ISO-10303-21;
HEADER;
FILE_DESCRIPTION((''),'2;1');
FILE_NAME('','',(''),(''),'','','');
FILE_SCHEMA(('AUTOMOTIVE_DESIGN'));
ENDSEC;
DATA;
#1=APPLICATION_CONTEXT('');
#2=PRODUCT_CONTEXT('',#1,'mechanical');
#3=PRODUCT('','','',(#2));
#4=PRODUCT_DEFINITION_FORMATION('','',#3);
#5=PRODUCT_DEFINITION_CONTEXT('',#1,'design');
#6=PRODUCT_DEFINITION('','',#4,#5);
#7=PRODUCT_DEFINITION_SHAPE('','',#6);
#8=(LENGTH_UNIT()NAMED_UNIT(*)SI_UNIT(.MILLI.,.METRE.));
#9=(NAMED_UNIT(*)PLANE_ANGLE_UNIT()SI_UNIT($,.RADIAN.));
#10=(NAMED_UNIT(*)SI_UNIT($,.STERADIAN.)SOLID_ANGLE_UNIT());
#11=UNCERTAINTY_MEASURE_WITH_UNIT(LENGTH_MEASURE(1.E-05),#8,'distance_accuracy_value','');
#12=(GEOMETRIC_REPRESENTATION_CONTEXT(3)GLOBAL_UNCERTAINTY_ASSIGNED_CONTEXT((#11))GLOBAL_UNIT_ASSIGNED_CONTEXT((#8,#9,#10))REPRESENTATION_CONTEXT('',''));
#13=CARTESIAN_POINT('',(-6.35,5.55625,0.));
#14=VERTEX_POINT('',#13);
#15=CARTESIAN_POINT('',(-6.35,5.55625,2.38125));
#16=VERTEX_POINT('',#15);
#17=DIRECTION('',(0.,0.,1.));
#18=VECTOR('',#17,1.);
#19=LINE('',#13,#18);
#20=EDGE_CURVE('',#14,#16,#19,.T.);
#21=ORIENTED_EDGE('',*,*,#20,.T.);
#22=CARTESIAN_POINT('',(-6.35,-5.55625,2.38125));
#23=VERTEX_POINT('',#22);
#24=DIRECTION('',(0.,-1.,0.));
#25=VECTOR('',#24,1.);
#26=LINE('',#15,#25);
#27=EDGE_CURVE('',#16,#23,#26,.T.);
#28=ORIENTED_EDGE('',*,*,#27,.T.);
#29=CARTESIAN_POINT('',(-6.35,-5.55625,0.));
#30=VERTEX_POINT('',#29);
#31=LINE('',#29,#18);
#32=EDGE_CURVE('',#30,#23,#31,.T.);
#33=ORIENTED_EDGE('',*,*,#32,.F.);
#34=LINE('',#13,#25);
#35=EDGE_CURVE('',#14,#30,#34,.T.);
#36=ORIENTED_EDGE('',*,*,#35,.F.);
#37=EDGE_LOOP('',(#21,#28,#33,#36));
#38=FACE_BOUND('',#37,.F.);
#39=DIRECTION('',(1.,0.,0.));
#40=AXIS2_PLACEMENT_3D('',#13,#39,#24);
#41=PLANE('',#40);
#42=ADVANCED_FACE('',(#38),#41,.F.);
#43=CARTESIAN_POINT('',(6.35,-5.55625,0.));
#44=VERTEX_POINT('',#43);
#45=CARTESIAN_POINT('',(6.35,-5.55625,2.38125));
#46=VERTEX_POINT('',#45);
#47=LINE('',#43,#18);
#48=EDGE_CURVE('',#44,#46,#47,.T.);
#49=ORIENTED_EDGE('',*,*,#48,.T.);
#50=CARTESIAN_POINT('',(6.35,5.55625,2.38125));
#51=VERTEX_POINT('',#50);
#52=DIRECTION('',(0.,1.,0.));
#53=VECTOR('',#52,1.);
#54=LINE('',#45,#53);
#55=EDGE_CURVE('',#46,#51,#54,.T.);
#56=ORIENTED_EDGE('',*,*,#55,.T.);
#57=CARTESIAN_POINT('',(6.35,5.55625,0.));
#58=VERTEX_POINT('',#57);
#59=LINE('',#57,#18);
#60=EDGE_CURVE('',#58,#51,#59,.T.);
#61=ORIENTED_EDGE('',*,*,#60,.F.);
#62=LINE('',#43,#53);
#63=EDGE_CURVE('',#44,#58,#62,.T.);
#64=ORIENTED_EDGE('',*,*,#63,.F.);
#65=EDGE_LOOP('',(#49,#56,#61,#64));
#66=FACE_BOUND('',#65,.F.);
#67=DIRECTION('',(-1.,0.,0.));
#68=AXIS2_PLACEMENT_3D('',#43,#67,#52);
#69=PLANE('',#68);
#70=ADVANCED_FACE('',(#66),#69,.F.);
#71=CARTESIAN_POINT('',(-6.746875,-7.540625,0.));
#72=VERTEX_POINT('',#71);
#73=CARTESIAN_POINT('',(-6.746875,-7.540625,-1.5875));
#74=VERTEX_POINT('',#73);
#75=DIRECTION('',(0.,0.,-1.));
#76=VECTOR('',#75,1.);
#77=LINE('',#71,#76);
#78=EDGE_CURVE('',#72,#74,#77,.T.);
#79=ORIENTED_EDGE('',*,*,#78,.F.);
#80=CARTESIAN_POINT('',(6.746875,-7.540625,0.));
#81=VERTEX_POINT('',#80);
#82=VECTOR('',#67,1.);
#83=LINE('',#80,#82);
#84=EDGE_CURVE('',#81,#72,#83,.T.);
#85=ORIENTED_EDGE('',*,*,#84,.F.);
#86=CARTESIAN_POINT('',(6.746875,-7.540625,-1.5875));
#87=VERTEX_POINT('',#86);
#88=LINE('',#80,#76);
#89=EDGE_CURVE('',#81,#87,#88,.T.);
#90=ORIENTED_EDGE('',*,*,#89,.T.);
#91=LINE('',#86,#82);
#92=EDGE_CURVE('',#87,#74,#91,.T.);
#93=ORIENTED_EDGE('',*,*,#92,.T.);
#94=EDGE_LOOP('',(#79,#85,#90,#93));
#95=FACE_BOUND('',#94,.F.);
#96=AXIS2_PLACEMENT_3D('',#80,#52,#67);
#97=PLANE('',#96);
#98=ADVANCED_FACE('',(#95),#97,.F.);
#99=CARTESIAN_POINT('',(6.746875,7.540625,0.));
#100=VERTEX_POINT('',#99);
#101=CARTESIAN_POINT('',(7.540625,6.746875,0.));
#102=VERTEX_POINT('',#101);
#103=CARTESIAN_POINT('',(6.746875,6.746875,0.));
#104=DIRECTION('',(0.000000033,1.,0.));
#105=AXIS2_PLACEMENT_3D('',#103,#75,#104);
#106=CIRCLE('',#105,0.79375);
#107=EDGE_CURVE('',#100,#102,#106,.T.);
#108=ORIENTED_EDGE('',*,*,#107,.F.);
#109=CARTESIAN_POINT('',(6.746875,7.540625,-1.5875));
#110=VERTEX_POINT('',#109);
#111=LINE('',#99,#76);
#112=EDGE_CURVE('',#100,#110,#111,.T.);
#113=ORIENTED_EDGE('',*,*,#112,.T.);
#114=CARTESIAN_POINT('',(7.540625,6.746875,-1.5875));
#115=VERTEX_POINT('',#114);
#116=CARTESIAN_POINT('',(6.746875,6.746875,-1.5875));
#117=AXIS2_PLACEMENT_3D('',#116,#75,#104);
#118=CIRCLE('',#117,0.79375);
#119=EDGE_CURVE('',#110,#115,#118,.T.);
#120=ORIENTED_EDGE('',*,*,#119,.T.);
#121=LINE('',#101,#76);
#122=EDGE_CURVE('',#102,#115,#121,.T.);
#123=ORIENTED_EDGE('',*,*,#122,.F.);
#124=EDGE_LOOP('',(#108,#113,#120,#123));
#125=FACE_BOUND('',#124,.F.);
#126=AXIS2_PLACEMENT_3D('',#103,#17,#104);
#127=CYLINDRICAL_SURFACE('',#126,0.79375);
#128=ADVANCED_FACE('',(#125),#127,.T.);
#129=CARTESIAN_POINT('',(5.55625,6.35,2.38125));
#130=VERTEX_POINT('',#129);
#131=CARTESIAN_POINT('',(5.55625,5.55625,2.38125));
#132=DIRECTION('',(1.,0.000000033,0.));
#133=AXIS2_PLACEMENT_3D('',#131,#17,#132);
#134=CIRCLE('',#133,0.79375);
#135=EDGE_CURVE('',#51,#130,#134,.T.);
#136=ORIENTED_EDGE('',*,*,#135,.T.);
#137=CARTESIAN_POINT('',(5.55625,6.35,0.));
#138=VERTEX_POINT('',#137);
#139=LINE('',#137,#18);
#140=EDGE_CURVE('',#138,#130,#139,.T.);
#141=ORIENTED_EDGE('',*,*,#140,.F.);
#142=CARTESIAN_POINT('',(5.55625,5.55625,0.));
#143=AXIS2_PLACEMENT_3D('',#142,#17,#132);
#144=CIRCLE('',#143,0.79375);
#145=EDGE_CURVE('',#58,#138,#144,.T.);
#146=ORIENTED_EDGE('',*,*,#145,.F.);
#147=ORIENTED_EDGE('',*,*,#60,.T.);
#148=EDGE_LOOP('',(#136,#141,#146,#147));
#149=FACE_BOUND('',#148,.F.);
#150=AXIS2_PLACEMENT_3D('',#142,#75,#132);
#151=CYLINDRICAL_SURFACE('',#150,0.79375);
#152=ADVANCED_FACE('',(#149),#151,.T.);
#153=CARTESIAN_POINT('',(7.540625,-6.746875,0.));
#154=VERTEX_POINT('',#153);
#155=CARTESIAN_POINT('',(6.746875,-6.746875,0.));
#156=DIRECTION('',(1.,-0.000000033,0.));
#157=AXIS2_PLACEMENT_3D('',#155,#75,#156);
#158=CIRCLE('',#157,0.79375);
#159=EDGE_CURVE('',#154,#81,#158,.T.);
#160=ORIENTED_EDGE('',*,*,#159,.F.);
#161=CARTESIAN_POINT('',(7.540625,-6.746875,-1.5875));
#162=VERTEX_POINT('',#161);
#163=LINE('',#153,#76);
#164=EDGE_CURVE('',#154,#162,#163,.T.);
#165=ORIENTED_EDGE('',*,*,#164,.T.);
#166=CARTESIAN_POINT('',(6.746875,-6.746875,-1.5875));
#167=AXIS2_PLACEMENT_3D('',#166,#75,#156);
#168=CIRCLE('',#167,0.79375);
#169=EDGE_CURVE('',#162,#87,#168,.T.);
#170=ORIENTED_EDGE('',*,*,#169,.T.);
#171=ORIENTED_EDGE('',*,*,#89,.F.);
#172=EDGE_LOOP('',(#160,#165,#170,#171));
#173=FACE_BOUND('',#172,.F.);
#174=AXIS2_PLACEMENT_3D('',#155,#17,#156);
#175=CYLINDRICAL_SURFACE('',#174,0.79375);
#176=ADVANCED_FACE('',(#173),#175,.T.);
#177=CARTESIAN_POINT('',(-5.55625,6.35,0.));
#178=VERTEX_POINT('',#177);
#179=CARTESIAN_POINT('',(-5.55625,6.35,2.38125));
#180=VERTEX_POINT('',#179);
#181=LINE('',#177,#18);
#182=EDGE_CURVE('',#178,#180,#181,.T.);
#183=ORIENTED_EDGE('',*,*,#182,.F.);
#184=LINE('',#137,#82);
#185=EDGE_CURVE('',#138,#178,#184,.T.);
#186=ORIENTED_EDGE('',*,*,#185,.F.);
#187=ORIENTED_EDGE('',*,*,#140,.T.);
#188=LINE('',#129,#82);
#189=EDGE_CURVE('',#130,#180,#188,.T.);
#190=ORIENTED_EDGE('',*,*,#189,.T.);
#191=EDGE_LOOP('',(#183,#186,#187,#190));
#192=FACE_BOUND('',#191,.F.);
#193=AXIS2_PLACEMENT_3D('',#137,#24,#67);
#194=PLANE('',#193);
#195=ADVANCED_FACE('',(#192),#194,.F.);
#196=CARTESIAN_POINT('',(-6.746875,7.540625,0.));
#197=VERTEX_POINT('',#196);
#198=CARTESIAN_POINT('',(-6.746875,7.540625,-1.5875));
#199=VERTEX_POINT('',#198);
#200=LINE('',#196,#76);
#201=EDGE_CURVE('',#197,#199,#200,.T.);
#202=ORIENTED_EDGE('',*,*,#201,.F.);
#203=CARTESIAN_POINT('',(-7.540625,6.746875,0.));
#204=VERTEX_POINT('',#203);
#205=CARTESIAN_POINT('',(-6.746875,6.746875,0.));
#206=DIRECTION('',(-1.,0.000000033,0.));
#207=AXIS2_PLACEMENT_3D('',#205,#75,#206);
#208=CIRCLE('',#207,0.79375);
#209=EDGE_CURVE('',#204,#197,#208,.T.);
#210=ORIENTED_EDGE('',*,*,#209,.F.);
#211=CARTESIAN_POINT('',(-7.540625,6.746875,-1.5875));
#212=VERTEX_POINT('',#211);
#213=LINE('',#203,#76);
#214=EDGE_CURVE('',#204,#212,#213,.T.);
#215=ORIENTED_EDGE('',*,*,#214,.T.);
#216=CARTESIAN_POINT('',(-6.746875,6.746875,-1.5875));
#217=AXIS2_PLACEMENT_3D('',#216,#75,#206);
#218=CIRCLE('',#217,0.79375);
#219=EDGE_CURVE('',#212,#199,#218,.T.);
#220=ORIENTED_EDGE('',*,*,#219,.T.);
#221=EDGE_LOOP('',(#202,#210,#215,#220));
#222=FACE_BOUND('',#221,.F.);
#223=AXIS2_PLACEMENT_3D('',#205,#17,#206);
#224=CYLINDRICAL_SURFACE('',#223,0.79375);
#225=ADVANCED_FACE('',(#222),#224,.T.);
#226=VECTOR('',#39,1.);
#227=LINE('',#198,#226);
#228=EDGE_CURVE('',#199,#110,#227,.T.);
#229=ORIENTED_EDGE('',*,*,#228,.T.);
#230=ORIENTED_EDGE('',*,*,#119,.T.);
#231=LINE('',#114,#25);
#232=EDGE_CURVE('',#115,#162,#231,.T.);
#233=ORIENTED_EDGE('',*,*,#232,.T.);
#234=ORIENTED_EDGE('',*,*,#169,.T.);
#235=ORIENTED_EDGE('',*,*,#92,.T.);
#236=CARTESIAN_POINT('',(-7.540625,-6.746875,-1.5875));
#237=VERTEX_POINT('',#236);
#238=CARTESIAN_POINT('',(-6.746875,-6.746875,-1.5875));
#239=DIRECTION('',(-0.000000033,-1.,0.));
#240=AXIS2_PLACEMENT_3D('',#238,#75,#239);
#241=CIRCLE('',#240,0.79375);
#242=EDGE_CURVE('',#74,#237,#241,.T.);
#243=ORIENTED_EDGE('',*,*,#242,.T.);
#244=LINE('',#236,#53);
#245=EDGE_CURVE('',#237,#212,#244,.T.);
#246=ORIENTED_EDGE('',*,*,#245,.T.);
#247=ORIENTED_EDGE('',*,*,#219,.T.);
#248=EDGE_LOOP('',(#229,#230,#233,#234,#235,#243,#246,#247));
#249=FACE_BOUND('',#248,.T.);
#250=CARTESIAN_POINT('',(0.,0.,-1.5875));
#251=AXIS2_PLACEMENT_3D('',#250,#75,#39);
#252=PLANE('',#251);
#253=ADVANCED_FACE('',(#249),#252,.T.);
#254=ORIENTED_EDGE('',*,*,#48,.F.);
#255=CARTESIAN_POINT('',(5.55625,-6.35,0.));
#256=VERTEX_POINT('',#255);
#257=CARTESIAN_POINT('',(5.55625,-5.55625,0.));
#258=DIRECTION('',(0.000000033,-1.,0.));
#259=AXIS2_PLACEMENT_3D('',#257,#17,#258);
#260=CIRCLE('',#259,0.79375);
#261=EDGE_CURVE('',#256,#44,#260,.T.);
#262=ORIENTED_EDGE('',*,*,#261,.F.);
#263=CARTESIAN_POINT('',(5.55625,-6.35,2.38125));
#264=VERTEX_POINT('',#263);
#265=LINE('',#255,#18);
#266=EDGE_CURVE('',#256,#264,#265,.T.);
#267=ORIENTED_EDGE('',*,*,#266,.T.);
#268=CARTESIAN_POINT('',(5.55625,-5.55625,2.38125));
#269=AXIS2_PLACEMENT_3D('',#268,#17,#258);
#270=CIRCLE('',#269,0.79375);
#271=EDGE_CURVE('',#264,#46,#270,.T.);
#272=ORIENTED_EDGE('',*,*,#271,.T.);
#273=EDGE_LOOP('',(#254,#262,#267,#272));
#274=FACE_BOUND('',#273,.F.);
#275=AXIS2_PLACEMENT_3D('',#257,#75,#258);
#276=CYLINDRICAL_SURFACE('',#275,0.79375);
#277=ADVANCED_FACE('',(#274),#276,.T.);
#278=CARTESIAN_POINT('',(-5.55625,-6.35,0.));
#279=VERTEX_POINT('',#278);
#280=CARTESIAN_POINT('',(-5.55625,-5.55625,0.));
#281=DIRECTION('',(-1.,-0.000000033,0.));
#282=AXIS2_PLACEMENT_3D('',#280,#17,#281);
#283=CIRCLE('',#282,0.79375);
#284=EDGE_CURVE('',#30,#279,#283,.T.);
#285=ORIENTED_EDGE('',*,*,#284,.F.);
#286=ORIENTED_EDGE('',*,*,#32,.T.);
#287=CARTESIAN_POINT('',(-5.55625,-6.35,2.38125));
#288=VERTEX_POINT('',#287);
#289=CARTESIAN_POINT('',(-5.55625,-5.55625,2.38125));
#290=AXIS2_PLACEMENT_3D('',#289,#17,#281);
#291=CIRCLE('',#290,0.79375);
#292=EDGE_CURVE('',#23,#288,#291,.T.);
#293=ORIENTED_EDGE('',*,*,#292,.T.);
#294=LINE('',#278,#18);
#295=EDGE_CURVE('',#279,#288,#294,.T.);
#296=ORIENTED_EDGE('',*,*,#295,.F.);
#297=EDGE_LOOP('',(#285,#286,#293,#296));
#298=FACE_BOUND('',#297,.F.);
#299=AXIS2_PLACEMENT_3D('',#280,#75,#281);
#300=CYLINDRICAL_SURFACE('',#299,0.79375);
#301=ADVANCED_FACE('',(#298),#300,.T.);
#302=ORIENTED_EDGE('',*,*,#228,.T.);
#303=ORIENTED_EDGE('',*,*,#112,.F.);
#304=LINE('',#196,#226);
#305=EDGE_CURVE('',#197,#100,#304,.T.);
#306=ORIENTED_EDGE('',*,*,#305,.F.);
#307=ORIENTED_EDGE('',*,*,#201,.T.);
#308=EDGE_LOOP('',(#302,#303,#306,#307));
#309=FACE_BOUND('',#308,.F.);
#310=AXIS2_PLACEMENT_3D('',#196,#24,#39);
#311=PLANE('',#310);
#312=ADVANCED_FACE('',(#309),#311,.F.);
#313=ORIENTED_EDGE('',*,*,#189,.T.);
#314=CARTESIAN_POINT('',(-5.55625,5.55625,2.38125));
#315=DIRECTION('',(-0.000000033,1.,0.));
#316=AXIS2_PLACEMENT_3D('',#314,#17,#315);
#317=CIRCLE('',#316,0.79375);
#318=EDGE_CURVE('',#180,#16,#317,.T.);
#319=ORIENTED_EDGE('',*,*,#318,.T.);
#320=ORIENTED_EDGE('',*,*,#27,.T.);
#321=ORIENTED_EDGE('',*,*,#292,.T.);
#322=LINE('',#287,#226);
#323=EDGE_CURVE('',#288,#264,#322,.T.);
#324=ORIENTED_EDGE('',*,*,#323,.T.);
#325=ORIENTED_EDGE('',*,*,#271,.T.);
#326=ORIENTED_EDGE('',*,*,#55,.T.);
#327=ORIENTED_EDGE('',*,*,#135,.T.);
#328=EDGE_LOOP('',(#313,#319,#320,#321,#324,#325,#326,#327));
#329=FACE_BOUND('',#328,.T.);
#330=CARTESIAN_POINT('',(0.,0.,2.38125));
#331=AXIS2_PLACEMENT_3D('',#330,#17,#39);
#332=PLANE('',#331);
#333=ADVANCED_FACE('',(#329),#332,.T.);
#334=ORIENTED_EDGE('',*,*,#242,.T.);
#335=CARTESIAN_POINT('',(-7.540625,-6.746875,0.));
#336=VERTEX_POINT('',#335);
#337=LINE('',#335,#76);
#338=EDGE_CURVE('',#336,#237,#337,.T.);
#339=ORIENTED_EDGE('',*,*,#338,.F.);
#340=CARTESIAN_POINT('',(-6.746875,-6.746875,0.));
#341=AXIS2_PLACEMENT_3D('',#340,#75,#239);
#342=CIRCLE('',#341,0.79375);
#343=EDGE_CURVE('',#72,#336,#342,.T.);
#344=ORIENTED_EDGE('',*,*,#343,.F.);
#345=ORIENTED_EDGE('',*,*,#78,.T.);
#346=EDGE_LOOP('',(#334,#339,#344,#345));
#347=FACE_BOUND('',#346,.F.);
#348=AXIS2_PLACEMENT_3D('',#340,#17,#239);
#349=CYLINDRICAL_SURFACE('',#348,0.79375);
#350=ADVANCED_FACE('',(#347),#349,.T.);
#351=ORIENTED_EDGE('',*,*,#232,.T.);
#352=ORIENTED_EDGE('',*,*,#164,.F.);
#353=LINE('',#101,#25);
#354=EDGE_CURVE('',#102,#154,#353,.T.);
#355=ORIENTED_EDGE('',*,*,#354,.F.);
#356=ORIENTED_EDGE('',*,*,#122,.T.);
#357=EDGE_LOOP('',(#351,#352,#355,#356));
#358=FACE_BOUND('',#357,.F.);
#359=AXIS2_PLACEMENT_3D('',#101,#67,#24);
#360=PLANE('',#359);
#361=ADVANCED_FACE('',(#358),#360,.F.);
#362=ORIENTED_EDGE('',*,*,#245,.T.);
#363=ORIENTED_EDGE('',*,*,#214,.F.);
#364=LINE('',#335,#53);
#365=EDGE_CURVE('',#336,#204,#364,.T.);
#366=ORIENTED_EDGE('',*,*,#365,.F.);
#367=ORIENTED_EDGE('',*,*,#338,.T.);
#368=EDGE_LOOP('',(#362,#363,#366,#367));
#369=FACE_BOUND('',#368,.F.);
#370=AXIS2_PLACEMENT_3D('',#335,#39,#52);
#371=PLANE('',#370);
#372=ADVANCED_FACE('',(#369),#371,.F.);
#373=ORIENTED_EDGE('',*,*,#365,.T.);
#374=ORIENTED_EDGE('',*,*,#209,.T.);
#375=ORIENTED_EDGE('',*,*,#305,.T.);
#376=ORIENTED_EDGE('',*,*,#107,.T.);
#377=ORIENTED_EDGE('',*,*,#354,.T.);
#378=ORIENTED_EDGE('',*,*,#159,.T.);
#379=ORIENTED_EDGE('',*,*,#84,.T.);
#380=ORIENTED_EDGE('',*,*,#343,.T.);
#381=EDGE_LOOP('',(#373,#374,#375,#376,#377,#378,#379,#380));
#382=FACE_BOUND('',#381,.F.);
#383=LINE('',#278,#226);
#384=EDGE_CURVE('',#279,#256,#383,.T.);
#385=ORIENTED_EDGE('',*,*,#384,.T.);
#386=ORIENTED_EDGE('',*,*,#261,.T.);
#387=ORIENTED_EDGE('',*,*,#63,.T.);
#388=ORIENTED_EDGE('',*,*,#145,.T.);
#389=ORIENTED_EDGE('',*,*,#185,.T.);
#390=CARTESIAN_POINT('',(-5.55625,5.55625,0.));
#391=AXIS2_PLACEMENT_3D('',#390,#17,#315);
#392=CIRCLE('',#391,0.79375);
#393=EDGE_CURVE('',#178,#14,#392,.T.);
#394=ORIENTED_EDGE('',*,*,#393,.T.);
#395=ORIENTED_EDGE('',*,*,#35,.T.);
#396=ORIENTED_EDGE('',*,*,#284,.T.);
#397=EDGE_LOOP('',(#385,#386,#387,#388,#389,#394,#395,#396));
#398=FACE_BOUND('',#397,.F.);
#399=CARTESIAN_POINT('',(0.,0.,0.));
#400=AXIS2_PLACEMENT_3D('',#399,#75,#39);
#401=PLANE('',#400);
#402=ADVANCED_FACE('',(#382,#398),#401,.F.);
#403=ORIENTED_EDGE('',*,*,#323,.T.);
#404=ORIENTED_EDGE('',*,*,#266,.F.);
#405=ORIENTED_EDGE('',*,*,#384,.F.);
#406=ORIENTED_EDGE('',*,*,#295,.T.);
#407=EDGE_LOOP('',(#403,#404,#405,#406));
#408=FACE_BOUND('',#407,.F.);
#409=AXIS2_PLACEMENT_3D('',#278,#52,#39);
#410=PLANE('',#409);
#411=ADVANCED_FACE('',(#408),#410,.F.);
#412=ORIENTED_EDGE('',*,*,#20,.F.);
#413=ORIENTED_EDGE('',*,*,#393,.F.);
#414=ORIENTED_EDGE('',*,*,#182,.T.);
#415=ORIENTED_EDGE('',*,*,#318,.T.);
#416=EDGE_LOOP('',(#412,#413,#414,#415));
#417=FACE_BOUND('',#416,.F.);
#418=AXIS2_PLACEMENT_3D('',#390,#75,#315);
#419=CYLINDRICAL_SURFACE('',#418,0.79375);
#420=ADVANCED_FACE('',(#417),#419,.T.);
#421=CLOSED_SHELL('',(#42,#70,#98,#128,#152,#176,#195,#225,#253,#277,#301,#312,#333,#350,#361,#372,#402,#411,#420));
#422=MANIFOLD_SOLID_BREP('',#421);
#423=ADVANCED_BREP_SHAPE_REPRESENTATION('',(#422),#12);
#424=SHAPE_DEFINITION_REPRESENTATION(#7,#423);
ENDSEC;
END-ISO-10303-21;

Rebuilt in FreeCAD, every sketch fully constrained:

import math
import FreeCAD as App
import Part
import Sketcher
Q = App.Units.Quantity

doc = App.newDocument("Part")
body = doc.addObject("PartDesign::Body", "Body")

# Sketch on XY plane
sketch1 = body.newObject("Sketcher::SketchObject", "Sketch")
sketch1.AttachmentSupport = (doc.getObject("XY_Plane"), [""])
sketch1.MapMode = "FlatFace"
sketch1.addGeometry(Part.LineSegment(App.Vector(-5.6, -6.3, 0), App.Vector(5.6, -6.3, 0)), False)
sketch1.addGeometry(Part.ArcOfCircle(Part.Circle(App.Vector(5.6, -5.6, 0), App.Vector(0, 0, 1), 0.8), math.radians(-90), math.radians(0)), False)
sketch1.addGeometry(Part.LineSegment(App.Vector(6.3, -5.6, 0), App.Vector(6.3, 5.6, 0)), False)
sketch1.addGeometry(Part.ArcOfCircle(Part.Circle(App.Vector(5.6, 5.6, 0), App.Vector(0, 0, 1), 0.8), math.radians(0), math.radians(90)), False)
sketch1.addGeometry(Part.LineSegment(App.Vector(5.6, 6.3, 0), App.Vector(-5.6, 6.3, 0)), False)
sketch1.addGeometry(Part.ArcOfCircle(Part.Circle(App.Vector(-5.6, 5.6, 0), App.Vector(0, 0, 1), 0.8), math.radians(90), math.radians(180)), False)
sketch1.addGeometry(Part.LineSegment(App.Vector(-6.3, 5.6, 0), App.Vector(-6.3, -5.6, 0)), False)
sketch1.addGeometry(Part.ArcOfCircle(Part.Circle(App.Vector(-5.6, -5.6, 0), App.Vector(0, 0, 1), 0.8), math.radians(-180), math.radians(-90)), False)
sketch1.addConstraint(Sketcher.Constraint("Tangent", 0, 2, 1, 1))
sketch1.addConstraint(Sketcher.Constraint("Tangent", 1, 2, 2, 1))
sketch1.addConstraint(Sketcher.Constraint("Tangent", 2, 2, 3, 1))
sketch1.addConstraint(Sketcher.Constraint("Tangent", 3, 2, 4, 1))
sketch1.addConstraint(Sketcher.Constraint("Tangent", 4, 2, 5, 1))
sketch1.addConstraint(Sketcher.Constraint("Tangent", 5, 2, 6, 1))
sketch1.addConstraint(Sketcher.Constraint("Tangent", 6, 2, 7, 1))
sketch1.addConstraint(Sketcher.Constraint("Tangent", 7, 2, 0, 1))
sketch1.addConstraint(Sketcher.Constraint("Horizontal", 0))
sketch1.addConstraint(Sketcher.Constraint("Vertical", 2))
sketch1.addConstraint(Sketcher.Constraint("Horizontal", 4))
sketch1.addConstraint(Sketcher.Constraint("Vertical", 6))
sketch1.addConstraint(Sketcher.Constraint("Equal", 1, 3))
sketch1.addConstraint(Sketcher.Constraint("Equal", 3, 5))
sketch1.addConstraint(Sketcher.Constraint("Equal", 5, 7))
sketch1.addConstraint(Sketcher.Constraint("Symmetric", 1, 3, 5, 3, -1, 1))
sketch1.addConstraint(Sketcher.Constraint("Equal", 4, 2))
sketch1.addConstraint(Sketcher.Constraint("Radius", 1, Q("0.03125 in")))
sketch1.addConstraint(Sketcher.Constraint("DistanceX", 0, 1, 0, 2, Q("0.4375 in")))
pad1 = body.newObject("PartDesign::Pad", "Pad")
pad1.Profile = sketch1
pad1.Length = Q("0.09375 in")

# Sketch on XY plane
sketch2 = body.newObject("Sketcher::SketchObject", "Sketch001")
sketch2.AttachmentSupport = (doc.getObject("XY_Plane"), [""])
sketch2.MapMode = "FlatFace"
sketch2.addGeometry(Part.LineSegment(App.Vector(6.7, -7.5, 0), App.Vector(-6.7, -7.5, 0)), False)
sketch2.addGeometry(Part.ArcOfCircle(Part.Circle(App.Vector(-6.7, -6.7, 0), App.Vector(0, 0, 1), 0.8), math.radians(-180), math.radians(-90)), False)
sketch2.addGeometry(Part.LineSegment(App.Vector(-7.5, -6.7, 0), App.Vector(-7.5, 6.7, 0)), False)
sketch2.addGeometry(Part.ArcOfCircle(Part.Circle(App.Vector(-6.7, 6.7, 0), App.Vector(0, 0, 1), 0.8), math.radians(90), math.radians(180)), False)
sketch2.addGeometry(Part.LineSegment(App.Vector(-6.7, 7.5, 0), App.Vector(6.7, 7.5, 0)), False)
sketch2.addGeometry(Part.ArcOfCircle(Part.Circle(App.Vector(6.7, 6.7, 0), App.Vector(0, 0, 1), 0.8), math.radians(0), math.radians(90)), False)
sketch2.addGeometry(Part.LineSegment(App.Vector(7.5, 6.7, 0), App.Vector(7.5, -6.7, 0)), False)
sketch2.addGeometry(Part.ArcOfCircle(Part.Circle(App.Vector(6.7, -6.7, 0), App.Vector(0, 0, 1), 0.8), math.radians(-90), math.radians(0)), False)
sketch2.addConstraint(Sketcher.Constraint("Tangent", 0, 2, 1, 2))
sketch2.addConstraint(Sketcher.Constraint("Tangent", 1, 1, 2, 1))
sketch2.addConstraint(Sketcher.Constraint("Tangent", 2, 2, 3, 2))
sketch2.addConstraint(Sketcher.Constraint("Tangent", 3, 1, 4, 1))
sketch2.addConstraint(Sketcher.Constraint("Tangent", 4, 2, 5, 2))
sketch2.addConstraint(Sketcher.Constraint("Tangent", 5, 1, 6, 1))
sketch2.addConstraint(Sketcher.Constraint("Tangent", 6, 2, 7, 2))
sketch2.addConstraint(Sketcher.Constraint("Tangent", 7, 1, 0, 1))
sketch2.addConstraint(Sketcher.Constraint("Horizontal", 0))
sketch2.addConstraint(Sketcher.Constraint("Vertical", 2))
sketch2.addConstraint(Sketcher.Constraint("Horizontal", 4))
sketch2.addConstraint(Sketcher.Constraint("Vertical", 6))
sketch2.addConstraint(Sketcher.Constraint("Equal", 1, 3))
sketch2.addConstraint(Sketcher.Constraint("Equal", 3, 5))
sketch2.addConstraint(Sketcher.Constraint("Equal", 5, 7))
sketch2.addConstraint(Sketcher.Constraint("Symmetric", 1, 3, 5, 3, -1, 1))
sketch2.addConstraint(Sketcher.Constraint("Equal", 4, 2))
sketch2.addConstraint(Sketcher.Constraint("Radius", 1, Q("0.03125 in")))
sketch2.addConstraint(Sketcher.Constraint("DistanceX", 0, 2, 0, 1, Q("0.53125 in")))
pad2 = body.newObject("PartDesign::Pad", "Pad001")
pad2.Profile = sketch2
pad2.Length = Q("0.0625 in")
pad2.Reversed = True

doc.recompute()
